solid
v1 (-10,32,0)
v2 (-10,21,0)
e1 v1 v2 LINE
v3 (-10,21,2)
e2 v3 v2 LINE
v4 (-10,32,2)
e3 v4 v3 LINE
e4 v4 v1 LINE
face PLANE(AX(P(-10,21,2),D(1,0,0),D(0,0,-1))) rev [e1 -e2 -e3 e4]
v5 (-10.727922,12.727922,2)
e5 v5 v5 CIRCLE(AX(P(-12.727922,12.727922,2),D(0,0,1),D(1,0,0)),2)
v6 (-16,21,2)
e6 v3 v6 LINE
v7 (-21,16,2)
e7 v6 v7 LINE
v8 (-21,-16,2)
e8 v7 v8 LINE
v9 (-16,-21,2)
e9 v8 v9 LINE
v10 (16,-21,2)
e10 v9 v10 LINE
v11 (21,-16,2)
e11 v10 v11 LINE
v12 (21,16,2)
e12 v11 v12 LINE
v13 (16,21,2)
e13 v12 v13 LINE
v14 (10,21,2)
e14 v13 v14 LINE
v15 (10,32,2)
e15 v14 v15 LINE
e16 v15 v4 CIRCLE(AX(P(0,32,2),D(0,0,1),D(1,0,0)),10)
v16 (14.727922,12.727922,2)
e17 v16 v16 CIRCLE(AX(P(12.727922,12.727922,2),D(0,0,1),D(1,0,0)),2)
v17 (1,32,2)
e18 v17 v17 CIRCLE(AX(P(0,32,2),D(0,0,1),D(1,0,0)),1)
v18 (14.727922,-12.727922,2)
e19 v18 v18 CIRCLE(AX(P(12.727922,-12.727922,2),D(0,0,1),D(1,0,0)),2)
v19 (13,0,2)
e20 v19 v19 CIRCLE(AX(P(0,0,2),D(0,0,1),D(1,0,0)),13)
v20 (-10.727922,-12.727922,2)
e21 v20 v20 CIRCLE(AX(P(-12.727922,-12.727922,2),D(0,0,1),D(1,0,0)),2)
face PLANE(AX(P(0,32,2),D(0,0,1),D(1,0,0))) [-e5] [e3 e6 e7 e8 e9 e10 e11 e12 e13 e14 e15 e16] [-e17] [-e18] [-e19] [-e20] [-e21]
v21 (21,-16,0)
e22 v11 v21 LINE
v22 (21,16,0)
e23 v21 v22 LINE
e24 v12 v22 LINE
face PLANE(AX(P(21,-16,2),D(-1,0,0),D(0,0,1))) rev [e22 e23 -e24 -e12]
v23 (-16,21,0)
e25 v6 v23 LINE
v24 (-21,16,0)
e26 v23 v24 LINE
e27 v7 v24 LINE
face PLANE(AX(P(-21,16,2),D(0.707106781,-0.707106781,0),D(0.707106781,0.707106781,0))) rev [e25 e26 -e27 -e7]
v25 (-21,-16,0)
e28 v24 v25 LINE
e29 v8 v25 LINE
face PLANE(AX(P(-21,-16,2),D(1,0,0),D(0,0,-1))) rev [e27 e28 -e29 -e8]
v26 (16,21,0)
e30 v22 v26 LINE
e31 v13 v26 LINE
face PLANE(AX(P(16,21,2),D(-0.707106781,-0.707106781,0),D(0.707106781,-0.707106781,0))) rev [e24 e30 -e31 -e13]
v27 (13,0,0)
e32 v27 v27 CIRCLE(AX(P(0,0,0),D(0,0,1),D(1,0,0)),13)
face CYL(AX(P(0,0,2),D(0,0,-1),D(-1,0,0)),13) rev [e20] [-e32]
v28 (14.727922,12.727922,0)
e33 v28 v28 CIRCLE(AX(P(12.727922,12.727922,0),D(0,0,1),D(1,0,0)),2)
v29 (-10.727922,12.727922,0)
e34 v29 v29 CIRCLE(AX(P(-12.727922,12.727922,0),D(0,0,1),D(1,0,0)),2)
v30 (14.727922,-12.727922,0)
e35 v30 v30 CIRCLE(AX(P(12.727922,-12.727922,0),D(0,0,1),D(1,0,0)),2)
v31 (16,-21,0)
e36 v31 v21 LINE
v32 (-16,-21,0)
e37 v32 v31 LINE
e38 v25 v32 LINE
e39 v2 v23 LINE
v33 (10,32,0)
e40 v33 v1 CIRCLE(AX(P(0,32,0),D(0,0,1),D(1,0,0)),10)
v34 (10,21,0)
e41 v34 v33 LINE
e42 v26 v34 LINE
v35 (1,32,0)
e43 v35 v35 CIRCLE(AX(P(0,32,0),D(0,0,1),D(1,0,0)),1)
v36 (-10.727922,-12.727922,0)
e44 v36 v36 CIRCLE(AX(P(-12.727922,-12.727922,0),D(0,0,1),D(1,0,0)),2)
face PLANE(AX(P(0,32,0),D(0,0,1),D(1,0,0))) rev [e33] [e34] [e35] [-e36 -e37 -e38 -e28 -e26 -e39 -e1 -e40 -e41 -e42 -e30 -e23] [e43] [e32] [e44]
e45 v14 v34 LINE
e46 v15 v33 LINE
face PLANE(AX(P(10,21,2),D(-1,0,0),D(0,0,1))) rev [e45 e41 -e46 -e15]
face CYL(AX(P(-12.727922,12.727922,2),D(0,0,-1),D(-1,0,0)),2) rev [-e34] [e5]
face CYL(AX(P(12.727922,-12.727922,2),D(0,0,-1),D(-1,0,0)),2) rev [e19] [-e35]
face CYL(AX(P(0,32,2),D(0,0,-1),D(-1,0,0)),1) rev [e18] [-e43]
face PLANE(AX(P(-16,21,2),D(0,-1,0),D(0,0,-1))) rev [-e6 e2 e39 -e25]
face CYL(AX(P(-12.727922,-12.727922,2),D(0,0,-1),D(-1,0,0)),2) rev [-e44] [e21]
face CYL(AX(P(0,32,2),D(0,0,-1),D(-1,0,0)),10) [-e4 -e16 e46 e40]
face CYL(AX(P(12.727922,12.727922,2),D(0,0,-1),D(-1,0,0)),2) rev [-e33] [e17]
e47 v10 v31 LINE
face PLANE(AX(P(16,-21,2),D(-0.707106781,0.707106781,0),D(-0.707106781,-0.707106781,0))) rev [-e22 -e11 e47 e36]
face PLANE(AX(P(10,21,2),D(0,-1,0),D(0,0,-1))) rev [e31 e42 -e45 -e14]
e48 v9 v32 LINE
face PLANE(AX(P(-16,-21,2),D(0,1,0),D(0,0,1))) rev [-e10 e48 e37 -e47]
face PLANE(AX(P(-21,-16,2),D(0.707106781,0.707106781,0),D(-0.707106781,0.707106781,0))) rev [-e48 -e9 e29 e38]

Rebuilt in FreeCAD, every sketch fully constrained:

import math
import FreeCAD as App
import Part
import Sketcher

V = App.Vector
Q = App.Units.Quantity

doc = App.newDocument("Part")
body = doc.addObject("PartDesign::Body", "Body")

sketch1 = body.newObject("Sketcher::SketchObject", "Sketch")
sketch1.AttachmentSupport = (doc.getObject("XY_Plane"), [""])
sketch1.MapMode = "FlatFace"
sketch1.addGeometry([
    Part.LineSegment(V(16, 21, 0), V(10, 21, 0)),
    Part.LineSegment(V(10, 21, 0), V(10, 32, 0)),
    Part.ArcOfCircle(Part.Circle(V(0, 32, 0), V(0, 0, 1), 10), math.radians(0), math.radians(180)),
    Part.LineSegment(V(-10, 32, 0), V(-10, 21, 0)),
    Part.LineSegment(V(-10, 21, 0), V(-16, 21, 0)),
    Part.LineSegment(V(-16, 21, 0), V(-21, 16, 0)),
    Part.LineSegment(V(-21, 16, 0), V(-21, -16, 0)),
    Part.LineSegment(V(-21, -16, 0), V(-16, -21, 0)),
    Part.LineSegment(V(-16, -21, 0), V(16, -21, 0)),
    Part.LineSegment(V(16, -21, 0), V(21, -16, 0)),
    Part.LineSegment(V(21, -16, 0), V(21, 16, 0)),
    Part.LineSegment(V(21, 16, 0), V(16, 21, 0)),
    Part.Circle(V(12.727922, -12.727922, 0), V(0, 0, 1), 2),
    Part.Circle(V(-12.727922, -12.727922, 0), V(0, 0, 1), 2),
    Part.Circle(V(0, 0, 0), V(0, 0, 1), 13),
    Part.Circle(V(12.727922, 12.727922, 0), V(0, 0, 1), 2),
    Part.Circle(V(-12.727922, 12.727922, 0), V(0, 0, 1), 2),
    Part.Circle(V(0, 32, 0), V(0, 0, 1), 1),
], False)
sketch1.addConstraint([
    Sketcher.Constraint("Coincident", 0, 2, 1, 1),
    Sketcher.Constraint("Tangent", 1, 2, 2, 1),
    Sketcher.Constraint("Tangent", 2, 2, 3, 1),
    Sketcher.Constraint("Coincident", 3, 2, 4, 1),
    Sketcher.Constraint("Coincident", 4, 2, 5, 1),
    Sketcher.Constraint("Coincident", 5, 2, 6, 1),
    Sketcher.Constraint("Coincident", 6, 2, 7, 1),
    Sketcher.Constraint("Coincident", 7, 2, 8, 1),
    Sketcher.Constraint("Coincident", 8, 2, 9, 1),
    Sketcher.Constraint("Coincident", 9, 2, 10, 1),
    Sketcher.Constraint("Coincident", 10, 2, 11, 1),
    Sketcher.Constraint("Coincident", 11, 2, 0, 1),
    Sketcher.Constraint("Horizontal", 0),
    Sketcher.Constraint("Vertical", 1),
    Sketcher.Constraint("Vertical", 3),
    Sketcher.Constraint("Horizontal", 4),
    Sketcher.Constraint("Vertical", 6),
    Sketcher.Constraint("Horizontal", 8),
    Sketcher.Constraint("Vertical", 10),
    Sketcher.Constraint("Coincident", 14, 3, -1, 1),
    Sketcher.Constraint("Coincident", 17, 3, 2, 3),
    Sketcher.Constraint("Equal", 12, 13),
    Sketcher.Constraint("Equal", 13, 15),
    Sketcher.Constraint("Equal", 15, 16),
    Sketcher.Constraint("Symmetric", 13, 3, 15, 3, -1, 1),
    Sketcher.Constraint("Symmetric", 12, 3, 16, 3, -1, 1),
    Sketcher.Constraint("Symmetric", 4, 2, 8, 2, -1, 1),
    Sketcher.Constraint("Symmetric", 5, 2, 9, 2, -1, 1),
    Sketcher.Constraint("Symmetric", 7, 2, 11, 2, -1, 1),
    Sketcher.Constraint("Symmetric", 12, 3, 13, 3, -2),
    Sketcher.Constraint("PointOnObject", 2, 3, -2),
    Sketcher.Constraint("Perpendicular", 5, 7),
    Sketcher.Constraint("Perpendicular", 9, 11),
    Sketcher.Constraint("Horizontal", 6, 2, 9, 2),
    Sketcher.Constraint("Vertical", 4, 2, 7, 2),
    Sketcher.Constraint("Equal", 8, 6),
    Sketcher.Constraint("Diameter", 12, Q("4 mm")),
    Sketcher.Constraint("Diameter", 14, Q("26 mm")),
    Sketcher.Constraint("Diameter", 17, Q("2 mm")),
    Sketcher.Constraint("Radius", 2, Q("10 mm")),
    Sketcher.Constraint("DistanceX", 0, 2, 0, 1, Q("6 mm")),
    Sketcher.Constraint("DistanceY", 1, 1, 1, 2, Q("11 mm")),
    Sketcher.Constraint("DistanceY", -1, 1, 2, 3, Q("32 mm")),
    Sketcher.Constraint("DistanceX", -1, 1, 12, 3, Q("12.727922 mm")),
    Sketcher.Constraint("DistanceY", 12, 3, -1, 1, Q("12.727922 mm")),
])
pad1 = body.newObject("PartDesign::Pad", "Pad")
pad1.Profile = sketch1
pad1.Length = 2

doc.recompute()
